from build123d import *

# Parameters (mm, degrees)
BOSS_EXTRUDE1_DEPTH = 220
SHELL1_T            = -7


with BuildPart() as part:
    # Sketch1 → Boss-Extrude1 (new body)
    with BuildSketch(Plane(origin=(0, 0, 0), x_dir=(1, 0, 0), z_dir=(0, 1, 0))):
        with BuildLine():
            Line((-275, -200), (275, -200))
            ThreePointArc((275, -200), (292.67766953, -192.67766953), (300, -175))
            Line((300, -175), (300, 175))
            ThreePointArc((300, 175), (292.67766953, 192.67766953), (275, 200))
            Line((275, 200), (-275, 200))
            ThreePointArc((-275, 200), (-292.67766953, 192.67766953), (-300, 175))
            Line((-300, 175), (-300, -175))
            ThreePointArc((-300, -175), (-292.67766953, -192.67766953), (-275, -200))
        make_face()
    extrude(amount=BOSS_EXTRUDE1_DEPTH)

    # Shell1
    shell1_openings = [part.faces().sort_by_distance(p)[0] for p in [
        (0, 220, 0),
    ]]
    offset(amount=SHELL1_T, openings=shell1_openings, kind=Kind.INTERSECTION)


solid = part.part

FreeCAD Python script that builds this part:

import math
import FreeCAD as App
import Part
import Sketcher

V = App.Vector
Q = App.Units.Quantity


def faces_at(feature, points):
    """Names of the faces that lie closest to the given points."""
    faces = feature.Shape.Faces
    near = lambda p: min(range(len(faces)), key=lambda i: faces[i].distToShape(Part.Vertex(*p))[0])
    return sorted({f"Face{near(p) + 1}" for p in points})

doc = App.newDocument("Part")
body = doc.addObject("PartDesign::Body", "Body")

# Sketch on XZ plane
sketch1 = body.newObject("Sketcher::SketchObject", "Sketch")
sketch1.AttachmentSupport = (doc.getObject("XZ_Plane"), [""])
sketch1.MapMode = "FlatFace"
sketch1.addGeometry([
    Part.LineSegment(V(-275, 200, 0), V(275, 200, 0)),  # 0
    Part.ArcOfCircle(Part.Circle(V(275, 175, 0), V(0, 0, 1), 25), math.radians(0), math.radians(90)),  # 1
    Part.LineSegment(V(300, 175, 0), V(300, -175, 0)),  # 2
    Part.ArcOfCircle(Part.Circle(V(275, -175, 0), V(0, 0, 1), 25), math.radians(-90), math.radians(0)),  # 3
    Part.LineSegment(V(275, -200, 0), V(-275, -200, 0)),  # 4
    Part.ArcOfCircle(Part.Circle(V(-275, -175, 0), V(0, 0, 1), 25), math.radians(180), math.radians(270)),  # 5
    Part.LineSegment(V(-300, -175, 0), V(-300, 175, 0)),  # 6
    Part.ArcOfCircle(Part.Circle(V(-275, 175, 0), V(0, 0, 1), 25), math.radians(90), math.radians(180)),  # 7
], False)
sketch1.addConstraint([
    Sketcher.Constraint("Tangent", 0, 2, 1, 2),
    Sketcher.Constraint("Tangent", 1, 1, 2, 1),
    Sketcher.Constraint("Tangent", 2, 2, 3, 2),
    Sketcher.Constraint("Tangent", 3, 1, 4, 1),
    Sketcher.Constraint("Tangent", 4, 2, 5, 2),
    Sketcher.Constraint("Tangent", 5, 1, 6, 1),
    Sketcher.Constraint("Tangent", 6, 2, 7, 2),
    Sketcher.Constraint("Tangent", 7, 1, 0, 1),
    Sketcher.Constraint("Horizontal", 0),
    Sketcher.Constraint("Vertical", 2),
    Sketcher.Constraint("Horizontal", 4),
    Sketcher.Constraint("Vertical", 6),
    Sketcher.Constraint("Equal", 1, 3),
    Sketcher.Constraint("Equal", 3, 5),
    Sketcher.Constraint("Equal", 5, 7),
    Sketcher.Constraint("Symmetric", 1, 3, 5, 3, -1, 1),
    Sketcher.Constraint("Radius", 1, Q("25 mm")),
    Sketcher.Constraint("DistanceX", 0, 1, 0, 2, Q("550 mm")),
    Sketcher.Constraint("DistanceY", 2, 2, 2, 1, Q("350 mm")),
])
pad1 = body.newObject("PartDesign::Pad", "Pad")
pad1.Profile = sketch1
pad1.Length = 220
pad1.Reversed = True
doc.recompute()

thickness = body.newObject("PartDesign::Thickness", "Thickness")
thickness.Base = (pad1, faces_at(pad1, [(0, 220, 0)]))
thickness.Value = 7
thickness.Reversed = True
thickness.Join = "Intersection"

doc.recompute()
